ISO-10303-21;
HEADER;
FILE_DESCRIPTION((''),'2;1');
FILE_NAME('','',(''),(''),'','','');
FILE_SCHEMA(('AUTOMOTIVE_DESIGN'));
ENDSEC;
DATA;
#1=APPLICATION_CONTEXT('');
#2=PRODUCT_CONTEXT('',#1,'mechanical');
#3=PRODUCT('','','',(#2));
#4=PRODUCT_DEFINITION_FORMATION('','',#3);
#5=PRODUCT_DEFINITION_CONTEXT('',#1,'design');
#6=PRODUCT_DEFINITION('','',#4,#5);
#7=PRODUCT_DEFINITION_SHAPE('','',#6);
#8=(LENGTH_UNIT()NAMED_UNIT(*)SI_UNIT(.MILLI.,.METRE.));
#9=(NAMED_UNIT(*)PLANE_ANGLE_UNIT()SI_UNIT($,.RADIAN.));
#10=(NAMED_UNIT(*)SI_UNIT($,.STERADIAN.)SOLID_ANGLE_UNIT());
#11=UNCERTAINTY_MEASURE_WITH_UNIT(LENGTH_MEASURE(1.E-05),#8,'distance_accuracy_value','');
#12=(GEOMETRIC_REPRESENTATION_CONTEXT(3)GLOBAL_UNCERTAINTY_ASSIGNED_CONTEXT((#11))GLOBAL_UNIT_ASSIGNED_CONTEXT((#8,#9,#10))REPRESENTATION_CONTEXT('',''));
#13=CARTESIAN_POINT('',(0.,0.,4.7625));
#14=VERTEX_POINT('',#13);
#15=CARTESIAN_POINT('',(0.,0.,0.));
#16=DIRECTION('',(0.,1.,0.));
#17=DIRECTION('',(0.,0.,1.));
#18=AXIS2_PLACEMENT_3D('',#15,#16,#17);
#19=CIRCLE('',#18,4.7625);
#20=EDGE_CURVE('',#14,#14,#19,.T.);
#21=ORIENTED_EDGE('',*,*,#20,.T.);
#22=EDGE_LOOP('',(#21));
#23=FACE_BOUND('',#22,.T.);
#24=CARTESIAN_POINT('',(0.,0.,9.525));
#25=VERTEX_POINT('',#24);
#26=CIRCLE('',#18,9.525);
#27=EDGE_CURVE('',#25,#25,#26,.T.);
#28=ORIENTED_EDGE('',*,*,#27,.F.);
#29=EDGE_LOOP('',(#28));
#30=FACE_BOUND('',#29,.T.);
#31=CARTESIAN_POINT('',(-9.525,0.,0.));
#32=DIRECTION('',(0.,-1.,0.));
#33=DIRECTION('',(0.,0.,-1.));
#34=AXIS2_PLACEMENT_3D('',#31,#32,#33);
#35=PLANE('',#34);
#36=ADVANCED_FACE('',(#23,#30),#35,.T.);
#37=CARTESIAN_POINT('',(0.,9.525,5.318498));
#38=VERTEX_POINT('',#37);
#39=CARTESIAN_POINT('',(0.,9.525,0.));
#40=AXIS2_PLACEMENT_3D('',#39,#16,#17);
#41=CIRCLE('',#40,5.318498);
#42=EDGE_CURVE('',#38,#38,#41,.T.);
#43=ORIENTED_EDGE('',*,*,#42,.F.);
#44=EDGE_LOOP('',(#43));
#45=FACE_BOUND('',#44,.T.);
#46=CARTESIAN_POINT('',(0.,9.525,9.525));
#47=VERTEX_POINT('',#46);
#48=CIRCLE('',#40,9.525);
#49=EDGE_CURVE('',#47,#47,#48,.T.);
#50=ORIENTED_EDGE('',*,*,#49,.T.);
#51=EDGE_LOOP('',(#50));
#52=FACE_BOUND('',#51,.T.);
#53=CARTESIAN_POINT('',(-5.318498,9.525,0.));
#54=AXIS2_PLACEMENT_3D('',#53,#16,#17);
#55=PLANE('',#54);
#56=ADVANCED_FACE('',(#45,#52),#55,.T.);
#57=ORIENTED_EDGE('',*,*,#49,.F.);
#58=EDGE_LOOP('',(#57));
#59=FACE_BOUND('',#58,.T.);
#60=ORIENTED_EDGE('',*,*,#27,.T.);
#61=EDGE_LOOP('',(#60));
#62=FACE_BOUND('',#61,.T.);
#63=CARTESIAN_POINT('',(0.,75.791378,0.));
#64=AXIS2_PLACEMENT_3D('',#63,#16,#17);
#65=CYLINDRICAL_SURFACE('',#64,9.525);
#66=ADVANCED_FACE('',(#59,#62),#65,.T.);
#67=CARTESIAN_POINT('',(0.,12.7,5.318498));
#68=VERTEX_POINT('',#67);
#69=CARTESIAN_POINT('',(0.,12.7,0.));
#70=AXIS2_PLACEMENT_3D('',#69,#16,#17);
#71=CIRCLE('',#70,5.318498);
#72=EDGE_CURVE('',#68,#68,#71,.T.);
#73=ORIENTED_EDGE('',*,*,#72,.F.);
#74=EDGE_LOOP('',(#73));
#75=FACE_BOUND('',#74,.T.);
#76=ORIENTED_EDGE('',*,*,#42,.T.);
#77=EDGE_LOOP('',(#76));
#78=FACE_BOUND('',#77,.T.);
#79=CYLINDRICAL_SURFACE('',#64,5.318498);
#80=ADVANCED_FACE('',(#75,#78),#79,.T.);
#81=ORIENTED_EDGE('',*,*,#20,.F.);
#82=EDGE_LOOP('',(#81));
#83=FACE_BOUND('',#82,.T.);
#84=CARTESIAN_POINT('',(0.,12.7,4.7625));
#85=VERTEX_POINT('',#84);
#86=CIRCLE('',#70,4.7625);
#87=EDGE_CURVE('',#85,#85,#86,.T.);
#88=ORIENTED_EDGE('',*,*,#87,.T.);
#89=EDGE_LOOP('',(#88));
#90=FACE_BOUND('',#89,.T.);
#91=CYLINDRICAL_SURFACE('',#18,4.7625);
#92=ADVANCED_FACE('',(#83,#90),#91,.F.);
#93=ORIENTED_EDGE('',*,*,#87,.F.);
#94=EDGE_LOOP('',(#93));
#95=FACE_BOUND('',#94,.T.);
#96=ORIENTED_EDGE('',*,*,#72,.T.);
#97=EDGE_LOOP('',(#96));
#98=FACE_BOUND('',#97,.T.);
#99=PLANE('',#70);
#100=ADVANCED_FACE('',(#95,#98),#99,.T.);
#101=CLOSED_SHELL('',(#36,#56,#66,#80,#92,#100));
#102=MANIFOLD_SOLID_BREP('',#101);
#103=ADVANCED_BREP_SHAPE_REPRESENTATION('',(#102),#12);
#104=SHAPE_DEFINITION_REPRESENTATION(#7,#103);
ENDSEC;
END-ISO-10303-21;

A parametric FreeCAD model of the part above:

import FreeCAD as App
import Part
import Sketcher
Q = App.Units.Quantity


def add_polygon(sketch, points):
    """Adds a closed chain of lines whose ends are joined by coincident constraints."""
    first, n = sketch.GeometryCount, len(points)
    for a, b in zip(points, points[1:] + points[:1]):
        sketch.addGeometry(Part.LineSegment(App.Vector(*a, 0), App.Vector(*b, 0)), False)
    for i in range(n):
        sketch.addConstraint(Sketcher.Constraint("Coincident", first + i, 2, first + (i + 1) % n, 1))

doc = App.newDocument("Part")
body = doc.addObject("PartDesign::Body", "Body")

# Sketch on XY plane
sketch1 = doc.addObject("Sketcher::SketchObject", "Sketch")
body.addObject(sketch1)
sketch1.AttachmentSupport = (doc.XY_Plane, [""])
sketch1.MapMode = "FlatFace"
add_polygon(sketch1, [(0, 12.7), (-5.3, 12.7), (-5.3, 9.5), (-9.5, 9.5), (-9.5, 0), (0, 0)])  # lines 0-5
sketch1.addConstraint([
    Sketcher.Constraint("Horizontal", 0),
    Sketcher.Constraint("Vertical", 1),
    Sketcher.Constraint("Horizontal", 2),
    Sketcher.Constraint("Vertical", 3),
    Sketcher.Constraint("Horizontal", 4),
    Sketcher.Constraint("Vertical", 5),
    Sketcher.Constraint("Coincident", 4, 2, -1, 1),
    Sketcher.Constraint("Equal", 4, 3),
    Sketcher.Constraint("DistanceY", 5, 1, 5, 2, Q("0.5 in")),
    Sketcher.Constraint("DistanceX", 4, 1, 4, 2, Q("0.375 in")),
    Sketcher.Constraint("DistanceX", 0, 2, 0, 1, 5.318498),
])
revolution = doc.addObject("PartDesign::Revolution", "Revolution")
body.addObject(revolution)
revolution.Profile = sketch1
revolution.ReferenceAxis = (sketch1, ["V_Axis"])
revolution.Angle = 360

# Sketch on XZ plane
sketch2 = doc.addObject("Sketcher::SketchObject", "Sketch001")
body.addObject(sketch2)
sketch2.AttachmentSupport = (doc.XZ_Plane, [""])
sketch2.MapMode = "FlatFace"
sketch2.AttachmentOffset = App.Placement(App.Vector(0, 0, -0.5 * 25.4), App.Rotation())
sketch2.addGeometry(Part.Circle(App.Vector(0, 0, 0), App.Vector(0, 0, 1), 4.8), False)
sketch2.addConstraint([
    Sketcher.Constraint("Coincident", 0, 3, -1, 1),
    Sketcher.Constraint("Diameter", 0, Q("0.375 in")),
])
pocket1 = doc.addObject("PartDesign::Pocket", "Pocket")
body.addObject(pocket1)
pocket1.Profile = sketch2
pocket1.Type = "ThroughAll"
pocket1.Midplane = True

doc.recompute()
